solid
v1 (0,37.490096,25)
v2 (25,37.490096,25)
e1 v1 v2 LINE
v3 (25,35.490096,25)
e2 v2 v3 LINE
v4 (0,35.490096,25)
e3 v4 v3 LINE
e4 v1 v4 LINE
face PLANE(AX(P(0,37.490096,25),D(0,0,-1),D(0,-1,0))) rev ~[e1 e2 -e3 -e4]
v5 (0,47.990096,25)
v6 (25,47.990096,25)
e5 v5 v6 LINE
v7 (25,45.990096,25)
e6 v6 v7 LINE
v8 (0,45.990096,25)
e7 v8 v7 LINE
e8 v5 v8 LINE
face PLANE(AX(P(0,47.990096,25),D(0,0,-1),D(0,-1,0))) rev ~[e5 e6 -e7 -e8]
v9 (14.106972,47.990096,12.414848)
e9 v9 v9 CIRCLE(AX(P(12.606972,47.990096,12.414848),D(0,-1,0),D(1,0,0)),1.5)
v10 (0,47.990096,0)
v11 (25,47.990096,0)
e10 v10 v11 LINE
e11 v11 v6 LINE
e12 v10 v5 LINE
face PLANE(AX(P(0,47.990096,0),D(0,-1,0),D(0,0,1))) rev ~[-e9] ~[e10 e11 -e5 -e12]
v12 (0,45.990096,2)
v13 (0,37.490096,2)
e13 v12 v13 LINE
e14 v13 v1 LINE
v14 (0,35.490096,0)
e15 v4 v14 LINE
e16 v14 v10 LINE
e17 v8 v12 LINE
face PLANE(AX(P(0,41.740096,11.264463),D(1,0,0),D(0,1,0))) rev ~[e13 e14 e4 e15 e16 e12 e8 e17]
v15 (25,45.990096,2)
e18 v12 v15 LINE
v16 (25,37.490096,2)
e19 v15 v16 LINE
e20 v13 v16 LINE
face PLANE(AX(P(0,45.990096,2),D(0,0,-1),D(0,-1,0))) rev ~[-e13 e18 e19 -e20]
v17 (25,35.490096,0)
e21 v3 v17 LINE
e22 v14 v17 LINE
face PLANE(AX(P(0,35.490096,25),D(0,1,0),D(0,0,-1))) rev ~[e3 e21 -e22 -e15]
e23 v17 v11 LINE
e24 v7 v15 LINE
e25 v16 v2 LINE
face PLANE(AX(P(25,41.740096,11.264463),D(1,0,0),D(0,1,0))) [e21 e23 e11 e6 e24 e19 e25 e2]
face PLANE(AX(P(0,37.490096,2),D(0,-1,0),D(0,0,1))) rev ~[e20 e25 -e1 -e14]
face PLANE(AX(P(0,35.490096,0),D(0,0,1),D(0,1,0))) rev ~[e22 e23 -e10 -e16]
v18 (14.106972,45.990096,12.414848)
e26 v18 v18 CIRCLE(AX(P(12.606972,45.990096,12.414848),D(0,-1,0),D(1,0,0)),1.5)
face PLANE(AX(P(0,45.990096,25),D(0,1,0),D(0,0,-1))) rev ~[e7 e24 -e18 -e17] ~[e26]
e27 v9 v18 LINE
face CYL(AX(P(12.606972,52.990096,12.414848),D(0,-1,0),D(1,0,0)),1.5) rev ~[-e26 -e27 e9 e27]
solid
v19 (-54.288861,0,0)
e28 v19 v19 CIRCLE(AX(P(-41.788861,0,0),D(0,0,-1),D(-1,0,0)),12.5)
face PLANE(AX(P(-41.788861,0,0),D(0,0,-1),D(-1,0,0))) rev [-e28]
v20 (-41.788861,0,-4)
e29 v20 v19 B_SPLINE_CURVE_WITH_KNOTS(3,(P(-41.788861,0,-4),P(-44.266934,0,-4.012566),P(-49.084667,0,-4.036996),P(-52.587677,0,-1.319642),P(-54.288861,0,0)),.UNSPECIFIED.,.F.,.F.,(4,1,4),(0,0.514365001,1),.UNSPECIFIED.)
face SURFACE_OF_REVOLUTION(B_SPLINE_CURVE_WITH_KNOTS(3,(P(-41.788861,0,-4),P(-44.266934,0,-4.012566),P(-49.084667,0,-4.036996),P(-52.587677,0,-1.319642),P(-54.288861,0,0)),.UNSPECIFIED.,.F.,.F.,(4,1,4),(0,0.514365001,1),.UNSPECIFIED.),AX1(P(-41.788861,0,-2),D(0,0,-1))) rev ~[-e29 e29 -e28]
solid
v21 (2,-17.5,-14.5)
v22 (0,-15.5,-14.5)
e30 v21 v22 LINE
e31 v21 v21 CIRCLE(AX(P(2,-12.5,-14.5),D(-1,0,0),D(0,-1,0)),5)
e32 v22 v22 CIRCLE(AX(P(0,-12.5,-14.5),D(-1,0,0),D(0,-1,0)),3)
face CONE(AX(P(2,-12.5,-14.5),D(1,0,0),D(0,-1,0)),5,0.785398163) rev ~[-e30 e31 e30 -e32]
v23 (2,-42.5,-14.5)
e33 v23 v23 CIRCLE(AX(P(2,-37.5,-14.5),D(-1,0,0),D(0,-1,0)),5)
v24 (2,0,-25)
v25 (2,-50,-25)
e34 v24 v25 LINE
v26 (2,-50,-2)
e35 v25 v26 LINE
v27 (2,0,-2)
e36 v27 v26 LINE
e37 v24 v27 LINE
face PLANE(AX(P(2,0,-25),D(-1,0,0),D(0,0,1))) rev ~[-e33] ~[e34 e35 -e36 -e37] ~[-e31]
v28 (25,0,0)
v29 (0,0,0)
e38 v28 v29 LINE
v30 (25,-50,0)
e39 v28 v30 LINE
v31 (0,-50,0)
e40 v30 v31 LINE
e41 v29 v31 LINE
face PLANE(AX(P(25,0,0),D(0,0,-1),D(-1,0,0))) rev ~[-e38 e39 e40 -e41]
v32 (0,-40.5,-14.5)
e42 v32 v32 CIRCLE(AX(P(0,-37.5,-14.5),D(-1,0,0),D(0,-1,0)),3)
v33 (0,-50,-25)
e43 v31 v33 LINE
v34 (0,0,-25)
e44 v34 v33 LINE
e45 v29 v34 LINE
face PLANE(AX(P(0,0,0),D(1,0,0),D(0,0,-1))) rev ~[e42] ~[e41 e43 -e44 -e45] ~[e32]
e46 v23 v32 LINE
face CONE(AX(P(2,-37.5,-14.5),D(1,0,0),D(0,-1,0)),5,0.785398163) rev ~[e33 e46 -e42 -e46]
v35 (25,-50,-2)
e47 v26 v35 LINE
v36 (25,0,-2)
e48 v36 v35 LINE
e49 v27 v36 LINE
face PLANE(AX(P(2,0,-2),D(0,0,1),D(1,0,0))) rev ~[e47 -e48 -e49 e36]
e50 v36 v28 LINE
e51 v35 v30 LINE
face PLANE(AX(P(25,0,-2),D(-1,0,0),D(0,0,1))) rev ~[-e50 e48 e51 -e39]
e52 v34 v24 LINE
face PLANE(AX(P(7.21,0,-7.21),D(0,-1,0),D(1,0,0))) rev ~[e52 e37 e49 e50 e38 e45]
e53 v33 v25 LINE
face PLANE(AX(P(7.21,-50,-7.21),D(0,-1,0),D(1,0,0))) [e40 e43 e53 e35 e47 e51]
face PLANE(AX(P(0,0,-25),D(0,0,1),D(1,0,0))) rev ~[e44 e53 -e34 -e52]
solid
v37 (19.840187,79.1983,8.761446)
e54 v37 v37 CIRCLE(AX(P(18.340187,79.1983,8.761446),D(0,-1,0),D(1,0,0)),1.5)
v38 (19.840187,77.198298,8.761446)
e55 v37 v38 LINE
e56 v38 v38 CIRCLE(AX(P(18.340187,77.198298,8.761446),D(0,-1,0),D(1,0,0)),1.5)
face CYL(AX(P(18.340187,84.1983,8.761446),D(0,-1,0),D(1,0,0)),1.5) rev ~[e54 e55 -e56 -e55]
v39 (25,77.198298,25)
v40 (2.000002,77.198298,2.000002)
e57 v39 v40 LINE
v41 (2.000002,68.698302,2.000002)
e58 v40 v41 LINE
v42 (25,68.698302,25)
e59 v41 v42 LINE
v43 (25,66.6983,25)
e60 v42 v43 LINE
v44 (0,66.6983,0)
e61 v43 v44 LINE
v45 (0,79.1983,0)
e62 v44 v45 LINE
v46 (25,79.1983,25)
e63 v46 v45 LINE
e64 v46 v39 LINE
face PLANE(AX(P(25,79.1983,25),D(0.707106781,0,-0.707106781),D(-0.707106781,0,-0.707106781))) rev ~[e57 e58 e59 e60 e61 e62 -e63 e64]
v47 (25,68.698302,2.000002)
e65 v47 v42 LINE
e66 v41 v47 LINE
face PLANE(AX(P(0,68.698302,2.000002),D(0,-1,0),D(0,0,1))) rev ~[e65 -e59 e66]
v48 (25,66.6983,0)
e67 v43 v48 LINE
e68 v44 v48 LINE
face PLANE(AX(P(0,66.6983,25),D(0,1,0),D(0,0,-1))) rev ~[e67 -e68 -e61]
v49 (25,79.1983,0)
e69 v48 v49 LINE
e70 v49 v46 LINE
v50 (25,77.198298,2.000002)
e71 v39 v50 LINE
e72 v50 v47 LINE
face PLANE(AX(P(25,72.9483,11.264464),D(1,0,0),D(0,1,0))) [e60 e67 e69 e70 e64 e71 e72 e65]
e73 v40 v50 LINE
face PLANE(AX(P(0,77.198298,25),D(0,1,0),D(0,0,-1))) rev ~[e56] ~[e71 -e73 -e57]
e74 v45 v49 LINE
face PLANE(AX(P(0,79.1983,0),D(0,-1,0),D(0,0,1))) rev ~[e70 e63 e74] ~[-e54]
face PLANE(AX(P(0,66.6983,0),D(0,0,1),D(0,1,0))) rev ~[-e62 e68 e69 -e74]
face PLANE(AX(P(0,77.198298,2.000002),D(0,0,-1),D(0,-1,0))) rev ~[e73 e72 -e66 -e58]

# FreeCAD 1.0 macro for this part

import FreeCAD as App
import Part
import Sketcher
from FreeCAD import Vector

doc = App.newDocument("Part")
body = doc.addObject("PartDesign::Body", "Body")

# Sketch on XZ plane
sketch1 = body.newObject("Sketcher::SketchObject", "Sketch")
sketch1.AttachmentSupport = (doc.getObject("XZ_Plane"), [""])
sketch1.MapMode = "FlatFace"
sketch1.addGeometry([
    Part.LineSegment(Vector(25, -2, 0), Vector(25, 0, 0)),  # 0
    Part.LineSegment(Vector(25, 0, 0), Vector(0, 0, 0)),  # 1
    Part.LineSegment(Vector(0, 0, 0), Vector(0, -25, 0)),  # 2
    Part.LineSegment(Vector(0, -25, 0), Vector(2, -25, 0)),  # 3
    Part.LineSegment(Vector(2, -25, 0), Vector(2, -2, 0)),  # 4
    Part.LineSegment(Vector(2, -2, 0), Vector(25, -2, 0)),  # 5
], False)
sketch1.addConstraint([
    Sketcher.Constraint("Coincident", 0, 2, 1, 1),
    Sketcher.Constraint("Coincident", 1, 2, 2, 1),
    Sketcher.Constraint("Coincident", 2, 2, 3, 1),
    Sketcher.Constraint("Coincident", 3, 2, 4, 1),
    Sketcher.Constraint("Coincident", 4, 2, 5, 1),
    Sketcher.Constraint("Coincident", 5, 2, 0, 1),
    Sketcher.Constraint("Vertical", 0),
    Sketcher.Constraint("Horizontal", 1),
    Sketcher.Constraint("Vertical", 2),
    Sketcher.Constraint("Horizontal", 3),
    Sketcher.Constraint("Vertical", 4),
    Sketcher.Constraint("Horizontal", 5),
    Sketcher.Constraint("Coincident", 1, 2, -1, 1),
    Sketcher.Constraint("Equal", 3, 0),
    Sketcher.Constraint("Equal", 1, 2),
    Sketcher.Constraint("DistanceX", 1, 2, 1, 1, 25.0),
    Sketcher.Constraint("DistanceX", 3, 1, 3, 2, 2.0),
])
pad1 = body.newObject("PartDesign::Pad", "Pad")
pad1.Profile = sketch1
pad1.Length = 50

# Sketch on YZ plane
sketch2 = body.newObject("Sketcher::SketchObject", "Sketch001")
sketch2.AttachmentSupport = (doc.getObject("YZ_Plane"), [""])
sketch2.MapMode = "FlatFace"
sketch2.AttachmentOffset = App.Placement(Vector(0, 0, 2), App.Rotation())
sketch2.addGeometry([
    Part.Circle(Vector(-37.5, -14.5, 0), Vector(0, 0, 1), 2.5),
    Part.Circle(Vector(-12.5, -14.5, 0), Vector(0, 0, 1), 2.5),
], False)
sketch2.addConstraint([
    Sketcher.Constraint("Equal", 0, 1),
    Sketcher.Constraint("Horizontal", 0, 3, 1, 3),
    Sketcher.Constraint("Diameter", 0, 5.0),
    Sketcher.Constraint("DistanceX", 0, 3, 1, 3, 25.0),
    Sketcher.Constraint("DistanceX", 0, 3, -1, 1, 37.5),
    Sketcher.Constraint("DistanceY", 0, 3, -1, 1, 14.5),
])
doc.recompute()
hole = body.newObject("PartDesign::Hole", "Hole")
hole.Profile = sketch2
hole.ThreadType = "None"
hole.Diameter = 5
hole.DepthType = "ThroughAll"
hole.HoleCutType = "Countersink"
hole.HoleCutDiameter = 10
hole.HoleCutCountersinkAngle = 90
body2 = doc.addObject("PartDesign::Body", "Body001")

# Sketch on XZ plane
sketch3 = body2.newObject("Sketcher::SketchObject", "Sketch002")
sketch3.AttachmentSupport = (doc.getObject("XZ_Plane001"), [""])
sketch3.MapMode = "FlatFace"
sketch3.addGeometry([
    Part.LineSegment(Vector(-41.788861, 0, 0), Vector(-54.288861, 0, 0)),
    Part.BSplineCurve([Vector(-41.788861, -4, 0), Vector(-44.266934, -4.012566, 0), Vector(-49.084667, -4.036996, 0), Vector(-52.587677, -1.319642, 0), Vector(-54.288861, 0, 0)], [4, 1, 4], [0, 0.514365001, 1], False, 3, [1, 1, 1, 1, 1], False),
    Part.LineSegment(Vector(-41.788861, -4, 0), Vector(-41.788861, 0, 0)),
], False)
sketch3.addGeometry(Part.LineSegment(Vector(-41.788861, 0, 0), Vector(-41.788861, -4, 0)), True)  # axis
sketch3.addConstraint([
    Sketcher.Constraint("Block", 1),
    Sketcher.Constraint("Coincident", 0, 2, 1, 2),
    Sketcher.Constraint("Coincident", 1, 1, 2, 1),
    Sketcher.Constraint("Coincident", 2, 2, 0, 1),
    Sketcher.Constraint("Horizontal", 0),
    Sketcher.Constraint("Vertical", 2),
    Sketcher.Constraint("Vertical", 3),
    Sketcher.Constraint("Coincident", 3, 1, 2, 2),
    Sketcher.Constraint("Equal", 2, 3),
])
revolution = body2.newObject("PartDesign::Revolution", "Revolution")
revolution.Profile = sketch3
revolution.ReferenceAxis = (sketch3, ["Axis0"])
revolution.Angle = 360
body3 = doc.addObject("PartDesign::Body", "Body002")

# Sketch on YZ plane
sketch4 = body3.newObject("Sketcher::SketchObject", "Sketch003")
sketch4.AttachmentSupport = (doc.getObject("YZ_Plane002"), [""])
sketch4.MapMode = "FlatFace"
sketch4.addGeometry([
    Part.LineSegment(Vector(68.7, 25, 0), Vector(66.7, 25, 0)),  # 0
    Part.LineSegment(Vector(66.7, 25, 0), Vector(66.7, 0, 0)),  # 1
    Part.LineSegment(Vector(66.7, 0, 0), Vector(79.2, 0, 0)),  # 2
    Part.LineSegment(Vector(79.2, 0, 0), Vector(79.2, 25, 0)),  # 3
    Part.LineSegment(Vector(79.2, 25, 0), Vector(77.2, 25, 0)),  # 4
    Part.LineSegment(Vector(77.2, 25, 0), Vector(77.2, 2, 0)),  # 5
    Part.LineSegment(Vector(77.2, 2, 0), Vector(68.7, 2, 0)),  # 6
    Part.LineSegment(Vector(68.7, 2, 0), Vector(68.7, 25, 0)),  # 7
], False)
sketch4.addConstraint([
    Sketcher.Constraint("Coincident", 0, 2, 1, 1),
    Sketcher.Constraint("Coincident", 1, 2, 2, 1),
    Sketcher.Constraint("Coincident", 2, 2, 3, 1),
    Sketcher.Constraint("Coincident", 3, 2, 4, 1),
    Sketcher.Constraint("Coincident", 4, 2, 5, 1),
    Sketcher.Constraint("Coincident", 5, 2, 6, 1),
    Sketcher.Constraint("Coincident", 6, 2, 7, 1),
    Sketcher.Constraint("Coincident", 7, 2, 0, 1),
    Sketcher.Constraint("Horizontal", 0),
    Sketcher.Constraint("Vertical", 1),
    Sketcher.Constraint("Horizontal", 2),
    Sketcher.Constraint("Vertical", 3),
    Sketcher.Constraint("Horizontal", 4),
    Sketcher.Constraint("Vertical", 5),
    Sketcher.Constraint("Horizontal", 6),
    Sketcher.Constraint("Vertical", 7),
    Sketcher.Constraint("PointOnObject", 1, 2, -1),
    Sketcher.Constraint("Horizontal", 0, 2, 3, 2),
    Sketcher.Constraint("Equal", 0, 4),
    Sketcher.Constraint("DistanceX", 0, 2, 0, 1, 2.000002),
    Sketcher.Constraint("DistanceY", 1, 2, 1, 1, 25.0),
    Sketcher.Constraint("DistanceY", 5, 2, 5, 1, 22.999998),
    Sketcher.Constraint("DistanceX", 2, 1, 2, 2, 12.5),
    Sketcher.Constraint("DistanceX", -1, 1, 0, 2, 66.6983),
])
pad2 = body3.newObject("PartDesign::Pad", "Pad001")
pad2.Profile = sketch4
pad2.Length = 25

# Sketch on XZ plane
sketch5 = body3.newObject("Sketcher::SketchObject", "Sketch004")
sketch5.AttachmentSupport = (doc.getObject("XZ_Plane002"), [""])
sketch5.MapMode = "FlatFace"
sketch5.AttachmentOffset = App.Placement(Vector(0, 0, -79.1983), App.Rotation())
sketch5.addGeometry([
    Part.LineSegment(Vector(25, 25, 0), Vector(0, 0, 0)),
    Part.LineSegment(Vector(0, 0, 0), Vector(0, 25, 0)),
    Part.LineSegment(Vector(0, 25, 0), Vector(25, 25, 0)),
], False)
sketch5.addConstraint([
    Sketcher.Constraint("Coincident", 0, 2, 1, 1),
    Sketcher.Constraint("Coincident", 1, 2, 2, 1),
    Sketcher.Constraint("Coincident", 2, 2, 0, 1),
    Sketcher.Constraint("Vertical", 1),
    Sketcher.Constraint("Horizontal", 2),
    Sketcher.Constraint("Coincident", 0, 2, -1, 1),
    Sketcher.Constraint("Equal", 2, 1),
    Sketcher.Constraint("DistanceX", 2, 1, 2, 2, 25.0),
])
pocket1 = body3.newObject("PartDesign::Pocket", "Pocket")
pocket1.Profile = sketch5
pocket1.Length = 25
pocket1.Reversed = True

# Sketch on XZ plane
sketch6 = body3.newObject("Sketcher::SketchObject", "Sketch005")
sketch6.AttachmentSupport = (doc.getObject("XZ_Plane002"), [""])
sketch6.MapMode = "FlatFace"
sketch6.AttachmentOffset = App.Placement(Vector(0, 0, -79.1983), App.Rotation())
sketch6.addGeometry(Part.Circle(Vector(18.3, 8.8, 0), Vector(0, 0, 1), 1.5), False)
sketch6.addConstraint([
    Sketcher.Constraint("Diameter", 0, 3.0),
    Sketcher.Constraint("DistanceX", -1, 1, 0, 3, 18.340187),
    Sketcher.Constraint("DistanceY", -1, 1, 0, 3, 8.761446),
])
doc.recompute()
hole2 = body3.newObject("PartDesign::Hole", "Hole001")
hole2.Profile = sketch6
hole2.ThreadType = "None"
hole2.Diameter = 3
hole2.DepthType = "Dimension"
hole2.Depth = 5
hole2.DrillPoint = "Angled"
hole2.DrillPointAngle = 118
hole2.Reversed = True
body4 = doc.addObject("PartDesign::Body", "Body003")

# Sketch on YZ plane
sketch7 = body4.newObject("Sketcher::SketchObject", "Sketch006")
sketch7.AttachmentSupport = (doc.getObject("YZ_Plane003"), [""])
sketch7.MapMode = "FlatFace"
sketch7.addGeometry([
    Part.LineSegment(Vector(37.5, 25, 0), Vector(35.5, 25, 0)),  # 0
    Part.LineSegment(Vector(35.5, 25, 0), Vector(35.5, 0, 0)),  # 1
    Part.LineSegment(Vector(35.5, 0, 0), Vector(48, 0, 0)),  # 2
    Part.LineSegment(Vector(48, 0, 0), Vector(48, 25, 0)),  # 3
    Part.LineSegment(Vector(48, 25, 0), Vector(46, 25, 0)),  # 4
    Part.LineSegment(Vector(46, 25, 0), Vector(46, 2, 0)),  # 5
    Part.LineSegment(Vector(46, 2, 0), Vector(37.5, 2, 0)),  # 6
    Part.LineSegment(Vector(37.5, 2, 0), Vector(37.5, 25, 0)),  # 7
], False)
sketch7.addConstraint([
    Sketcher.Constraint("Coincident", 0, 2, 1, 1),
    Sketcher.Constraint("Coincident", 1, 2, 2, 1),
    Sketcher.Constraint("Coincident", 2, 2, 3, 1),
    Sketcher.Constraint("Coincident", 3, 2, 4, 1),
    Sketcher.Constraint("Coincident", 4, 2, 5, 1),
    Sketcher.Constraint("Coincident", 5, 2, 6, 1),
    Sketcher.Constraint("Coincident", 6, 2, 7, 1),
    Sketcher.Constraint("Coincident", 7, 2, 0, 1),
    Sketcher.Constraint("Horizontal", 0),
    Sketcher.Constraint("Vertical", 1),
    Sketcher.Constraint("Horizontal", 2),
    Sketcher.Constraint("Vertical", 3),
    Sketcher.Constraint("Horizontal", 4),
    Sketcher.Constraint("Vertical", 5),
    Sketcher.Constraint("Horizontal", 6),
    Sketcher.Constraint("Vertical", 7),
    Sketcher.Constraint("PointOnObject", 1, 2, -1),
    Sketcher.Constraint("Horizontal", 0, 2, 3, 2),
    Sketcher.Constraint("Equal", 0, 4),
    Sketcher.Constraint("DistanceX", 0, 2, 0, 1, 2.0),
    Sketcher.Constraint("DistanceY", 1, 2, 1, 1, 25.0),
    Sketcher.Constraint("DistanceY", 5, 2, 5, 1, 23.0),
    Sketcher.Constraint("DistanceX", 2, 1, 2, 2, 12.5),
    Sketcher.Constraint("DistanceX", -1, 1, 0, 2, 35.490096),
])
pad3 = body4.newObject("PartDesign::Pad", "Pad002")
pad3.Profile = sketch7
pad3.Length = 25

# Sketch on XZ plane
sketch8 = body4.newObject("Sketcher::SketchObject", "Sketch007")
sketch8.AttachmentSupport = (doc.getObject("XZ_Plane003"), [""])
sketch8.MapMode = "FlatFace"
sketch8.AttachmentOffset = App.Placement(Vector(0, 0, -47.990096), App.Rotation())
sketch8.addGeometry(Part.Circle(Vector(12.6, 12.4, 0), Vector(0, 0, 1), 1.5), False)
sketch8.addConstraint([
    Sketcher.Constraint("Diameter", 0, 3.0),
    Sketcher.Constraint("DistanceX", -1, 1, 0, 3, 12.606972),
    Sketcher.Constraint("DistanceY", -1, 1, 0, 3, 12.414848),
])
doc.recompute()
hole3 = body4.newObject("PartDesign::Hole", "Hole002")
hole3.Profile = sketch8
hole3.ThreadType = "None"
hole3.Diameter = 3
hole3.DepthType = "Dimension"
hole3.Depth = 5
hole3.DrillPoint = "Angled"
hole3.DrillPointAngle = 118
hole3.Reversed = True

doc.recompute()
